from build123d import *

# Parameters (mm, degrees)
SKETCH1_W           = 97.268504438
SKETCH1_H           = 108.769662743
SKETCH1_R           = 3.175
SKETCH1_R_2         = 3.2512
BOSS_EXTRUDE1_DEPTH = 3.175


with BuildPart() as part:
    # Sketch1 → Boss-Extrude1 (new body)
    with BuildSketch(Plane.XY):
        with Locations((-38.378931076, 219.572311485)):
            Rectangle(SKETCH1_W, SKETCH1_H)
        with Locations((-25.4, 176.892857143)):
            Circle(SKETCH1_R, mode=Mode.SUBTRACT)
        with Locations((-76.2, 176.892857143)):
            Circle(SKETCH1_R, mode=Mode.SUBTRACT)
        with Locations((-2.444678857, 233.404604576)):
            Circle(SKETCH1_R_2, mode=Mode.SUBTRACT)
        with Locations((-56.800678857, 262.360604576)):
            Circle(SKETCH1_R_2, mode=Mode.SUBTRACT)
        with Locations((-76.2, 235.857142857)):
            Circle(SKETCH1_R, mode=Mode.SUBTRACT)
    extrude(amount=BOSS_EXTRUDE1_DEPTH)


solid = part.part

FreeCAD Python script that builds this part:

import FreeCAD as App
import Part
import Sketcher
from FreeCAD import Vector
Q = App.Units.Quantity


def add_polygon(sketch, points):
    """Adds a closed chain of lines whose ends are joined by coincident constraints."""
    first, n = sketch.GeometryCount, len(points)
    for a, b in zip(points, points[1:] + points[:1]):
        sketch.addGeometry(Part.LineSegment(App.Vector(*a, 0), App.Vector(*b, 0)), False)
    for i in range(n):
        sketch.addConstraint(Sketcher.Constraint("Coincident", first + i, 2, first + (i + 1) % n, 1))

doc = App.newDocument("Part")
params = doc.addObject("Spreadsheet::Sheet", "Params")
for row, (alias, value) in enumerate([
    ("sketch1_diameter", "0.25 in"),
    ("sketch1_diameter2", "0.256 in"),
    ("pad1_length", "0.125 in"),
], start=1):
    params.set(f"A{row}", alias)
    params.set(f"B{row}", "=" + value)
    params.setAlias(f"B{row}", alias)

body = doc.addObject("PartDesign::Body", "Body")

sketch1 = doc.addObject("Sketcher::SketchObject", "Sketch")
body.addObject(sketch1)
sketch1.AttachmentSupport = (doc.XY_Plane, [""])
sketch1.MapMode = "FlatFace"
add_polygon(sketch1, [(-87, 274), (-87, 165.2), (10.3, 165.2), (10.3, 274)])
sketch1.addGeometry(Part.Circle(Vector(-76.2, 176.9, 0), Vector(0, 0, 1), 3.2), False)
sketch1.addGeometry(Part.Circle(Vector(-25.4, 176.9, 0), Vector(0, 0, 1), 3.2), False)
sketch1.addGeometry(Part.Circle(Vector(-76.2, 235.9, 0), Vector(0, 0, 1), 3.2), False)
sketch1.addGeometry(Part.Circle(Vector(-56.8, 262.4, 0), Vector(0, 0, 1), 3.3), False)
sketch1.addGeometry(Part.Circle(Vector(-2.4, 233.4, 0), Vector(0, 0, 1), 3.3), False)
sketch1.addConstraint([
    Sketcher.Constraint("Vertical", 0),
    Sketcher.Constraint("Horizontal", 1),
    Sketcher.Constraint("Vertical", 2),
    Sketcher.Constraint("Horizontal", 3),
    Sketcher.Constraint("Equal", 4, 5),
    Sketcher.Constraint("Equal", 5, 6),
    Sketcher.Constraint("Equal", 7, 8),
    Sketcher.Constraint("Horizontal", 4, 3, 5, 3),
    Sketcher.Constraint("Vertical", 4, 3, 6, 3),
    Sketcher.Constraint("Diameter", 4, Q("0.25 in")),
    Sketcher.Constraint("Diameter", 7, Q("0.256 in")),
    Sketcher.Constraint("DistanceX", 4, 3, -1, 1, Q("3 in")),
    Sketcher.Constraint("DistanceX", 5, 3, -1, 1, Q("1 in")),
    Sketcher.Constraint("DistanceX", 8, 3, 1, 2, Q("0.5 in")),
    Sketcher.Constraint("DistanceY", 6, 3, 2, 2, Q("1.5 in")),
    Sketcher.Constraint("DistanceX", 7, 3, 8, 3, Q("2.14 in")),
    Sketcher.Constraint("DistanceY", 8, 3, 7, 3, Q("1.14 in")),
    Sketcher.Constraint("DistanceX", 1, 1, 1, 2, 97.268504),
    Sketcher.Constraint("DistanceY", 0, 2, 0, 1, 108.769663),
    Sketcher.Constraint("DistanceX", 7, 3, -1, 1, 56.800679),
    Sketcher.Constraint("DistanceY", -1, 1, 0, 2, 165.18748),
    Sketcher.Constraint("DistanceY", 6, 3, 7, 3, 26.503462),
    Sketcher.Constraint("DistanceY", -1, 1, 4, 3, 176.892857),
])
sketch1.setExpression("Constraints[13]", "Params.sketch1_diameter")
sketch1.setExpression("Constraints[14]", "Params.sketch1_diameter2")
pad1 = doc.addObject("PartDesign::Pad", "Pad")
body.addObject(pad1)
pad1.Profile = sketch1
pad1.setExpression("Length", "Params.pad1_length")

doc.recompute()
